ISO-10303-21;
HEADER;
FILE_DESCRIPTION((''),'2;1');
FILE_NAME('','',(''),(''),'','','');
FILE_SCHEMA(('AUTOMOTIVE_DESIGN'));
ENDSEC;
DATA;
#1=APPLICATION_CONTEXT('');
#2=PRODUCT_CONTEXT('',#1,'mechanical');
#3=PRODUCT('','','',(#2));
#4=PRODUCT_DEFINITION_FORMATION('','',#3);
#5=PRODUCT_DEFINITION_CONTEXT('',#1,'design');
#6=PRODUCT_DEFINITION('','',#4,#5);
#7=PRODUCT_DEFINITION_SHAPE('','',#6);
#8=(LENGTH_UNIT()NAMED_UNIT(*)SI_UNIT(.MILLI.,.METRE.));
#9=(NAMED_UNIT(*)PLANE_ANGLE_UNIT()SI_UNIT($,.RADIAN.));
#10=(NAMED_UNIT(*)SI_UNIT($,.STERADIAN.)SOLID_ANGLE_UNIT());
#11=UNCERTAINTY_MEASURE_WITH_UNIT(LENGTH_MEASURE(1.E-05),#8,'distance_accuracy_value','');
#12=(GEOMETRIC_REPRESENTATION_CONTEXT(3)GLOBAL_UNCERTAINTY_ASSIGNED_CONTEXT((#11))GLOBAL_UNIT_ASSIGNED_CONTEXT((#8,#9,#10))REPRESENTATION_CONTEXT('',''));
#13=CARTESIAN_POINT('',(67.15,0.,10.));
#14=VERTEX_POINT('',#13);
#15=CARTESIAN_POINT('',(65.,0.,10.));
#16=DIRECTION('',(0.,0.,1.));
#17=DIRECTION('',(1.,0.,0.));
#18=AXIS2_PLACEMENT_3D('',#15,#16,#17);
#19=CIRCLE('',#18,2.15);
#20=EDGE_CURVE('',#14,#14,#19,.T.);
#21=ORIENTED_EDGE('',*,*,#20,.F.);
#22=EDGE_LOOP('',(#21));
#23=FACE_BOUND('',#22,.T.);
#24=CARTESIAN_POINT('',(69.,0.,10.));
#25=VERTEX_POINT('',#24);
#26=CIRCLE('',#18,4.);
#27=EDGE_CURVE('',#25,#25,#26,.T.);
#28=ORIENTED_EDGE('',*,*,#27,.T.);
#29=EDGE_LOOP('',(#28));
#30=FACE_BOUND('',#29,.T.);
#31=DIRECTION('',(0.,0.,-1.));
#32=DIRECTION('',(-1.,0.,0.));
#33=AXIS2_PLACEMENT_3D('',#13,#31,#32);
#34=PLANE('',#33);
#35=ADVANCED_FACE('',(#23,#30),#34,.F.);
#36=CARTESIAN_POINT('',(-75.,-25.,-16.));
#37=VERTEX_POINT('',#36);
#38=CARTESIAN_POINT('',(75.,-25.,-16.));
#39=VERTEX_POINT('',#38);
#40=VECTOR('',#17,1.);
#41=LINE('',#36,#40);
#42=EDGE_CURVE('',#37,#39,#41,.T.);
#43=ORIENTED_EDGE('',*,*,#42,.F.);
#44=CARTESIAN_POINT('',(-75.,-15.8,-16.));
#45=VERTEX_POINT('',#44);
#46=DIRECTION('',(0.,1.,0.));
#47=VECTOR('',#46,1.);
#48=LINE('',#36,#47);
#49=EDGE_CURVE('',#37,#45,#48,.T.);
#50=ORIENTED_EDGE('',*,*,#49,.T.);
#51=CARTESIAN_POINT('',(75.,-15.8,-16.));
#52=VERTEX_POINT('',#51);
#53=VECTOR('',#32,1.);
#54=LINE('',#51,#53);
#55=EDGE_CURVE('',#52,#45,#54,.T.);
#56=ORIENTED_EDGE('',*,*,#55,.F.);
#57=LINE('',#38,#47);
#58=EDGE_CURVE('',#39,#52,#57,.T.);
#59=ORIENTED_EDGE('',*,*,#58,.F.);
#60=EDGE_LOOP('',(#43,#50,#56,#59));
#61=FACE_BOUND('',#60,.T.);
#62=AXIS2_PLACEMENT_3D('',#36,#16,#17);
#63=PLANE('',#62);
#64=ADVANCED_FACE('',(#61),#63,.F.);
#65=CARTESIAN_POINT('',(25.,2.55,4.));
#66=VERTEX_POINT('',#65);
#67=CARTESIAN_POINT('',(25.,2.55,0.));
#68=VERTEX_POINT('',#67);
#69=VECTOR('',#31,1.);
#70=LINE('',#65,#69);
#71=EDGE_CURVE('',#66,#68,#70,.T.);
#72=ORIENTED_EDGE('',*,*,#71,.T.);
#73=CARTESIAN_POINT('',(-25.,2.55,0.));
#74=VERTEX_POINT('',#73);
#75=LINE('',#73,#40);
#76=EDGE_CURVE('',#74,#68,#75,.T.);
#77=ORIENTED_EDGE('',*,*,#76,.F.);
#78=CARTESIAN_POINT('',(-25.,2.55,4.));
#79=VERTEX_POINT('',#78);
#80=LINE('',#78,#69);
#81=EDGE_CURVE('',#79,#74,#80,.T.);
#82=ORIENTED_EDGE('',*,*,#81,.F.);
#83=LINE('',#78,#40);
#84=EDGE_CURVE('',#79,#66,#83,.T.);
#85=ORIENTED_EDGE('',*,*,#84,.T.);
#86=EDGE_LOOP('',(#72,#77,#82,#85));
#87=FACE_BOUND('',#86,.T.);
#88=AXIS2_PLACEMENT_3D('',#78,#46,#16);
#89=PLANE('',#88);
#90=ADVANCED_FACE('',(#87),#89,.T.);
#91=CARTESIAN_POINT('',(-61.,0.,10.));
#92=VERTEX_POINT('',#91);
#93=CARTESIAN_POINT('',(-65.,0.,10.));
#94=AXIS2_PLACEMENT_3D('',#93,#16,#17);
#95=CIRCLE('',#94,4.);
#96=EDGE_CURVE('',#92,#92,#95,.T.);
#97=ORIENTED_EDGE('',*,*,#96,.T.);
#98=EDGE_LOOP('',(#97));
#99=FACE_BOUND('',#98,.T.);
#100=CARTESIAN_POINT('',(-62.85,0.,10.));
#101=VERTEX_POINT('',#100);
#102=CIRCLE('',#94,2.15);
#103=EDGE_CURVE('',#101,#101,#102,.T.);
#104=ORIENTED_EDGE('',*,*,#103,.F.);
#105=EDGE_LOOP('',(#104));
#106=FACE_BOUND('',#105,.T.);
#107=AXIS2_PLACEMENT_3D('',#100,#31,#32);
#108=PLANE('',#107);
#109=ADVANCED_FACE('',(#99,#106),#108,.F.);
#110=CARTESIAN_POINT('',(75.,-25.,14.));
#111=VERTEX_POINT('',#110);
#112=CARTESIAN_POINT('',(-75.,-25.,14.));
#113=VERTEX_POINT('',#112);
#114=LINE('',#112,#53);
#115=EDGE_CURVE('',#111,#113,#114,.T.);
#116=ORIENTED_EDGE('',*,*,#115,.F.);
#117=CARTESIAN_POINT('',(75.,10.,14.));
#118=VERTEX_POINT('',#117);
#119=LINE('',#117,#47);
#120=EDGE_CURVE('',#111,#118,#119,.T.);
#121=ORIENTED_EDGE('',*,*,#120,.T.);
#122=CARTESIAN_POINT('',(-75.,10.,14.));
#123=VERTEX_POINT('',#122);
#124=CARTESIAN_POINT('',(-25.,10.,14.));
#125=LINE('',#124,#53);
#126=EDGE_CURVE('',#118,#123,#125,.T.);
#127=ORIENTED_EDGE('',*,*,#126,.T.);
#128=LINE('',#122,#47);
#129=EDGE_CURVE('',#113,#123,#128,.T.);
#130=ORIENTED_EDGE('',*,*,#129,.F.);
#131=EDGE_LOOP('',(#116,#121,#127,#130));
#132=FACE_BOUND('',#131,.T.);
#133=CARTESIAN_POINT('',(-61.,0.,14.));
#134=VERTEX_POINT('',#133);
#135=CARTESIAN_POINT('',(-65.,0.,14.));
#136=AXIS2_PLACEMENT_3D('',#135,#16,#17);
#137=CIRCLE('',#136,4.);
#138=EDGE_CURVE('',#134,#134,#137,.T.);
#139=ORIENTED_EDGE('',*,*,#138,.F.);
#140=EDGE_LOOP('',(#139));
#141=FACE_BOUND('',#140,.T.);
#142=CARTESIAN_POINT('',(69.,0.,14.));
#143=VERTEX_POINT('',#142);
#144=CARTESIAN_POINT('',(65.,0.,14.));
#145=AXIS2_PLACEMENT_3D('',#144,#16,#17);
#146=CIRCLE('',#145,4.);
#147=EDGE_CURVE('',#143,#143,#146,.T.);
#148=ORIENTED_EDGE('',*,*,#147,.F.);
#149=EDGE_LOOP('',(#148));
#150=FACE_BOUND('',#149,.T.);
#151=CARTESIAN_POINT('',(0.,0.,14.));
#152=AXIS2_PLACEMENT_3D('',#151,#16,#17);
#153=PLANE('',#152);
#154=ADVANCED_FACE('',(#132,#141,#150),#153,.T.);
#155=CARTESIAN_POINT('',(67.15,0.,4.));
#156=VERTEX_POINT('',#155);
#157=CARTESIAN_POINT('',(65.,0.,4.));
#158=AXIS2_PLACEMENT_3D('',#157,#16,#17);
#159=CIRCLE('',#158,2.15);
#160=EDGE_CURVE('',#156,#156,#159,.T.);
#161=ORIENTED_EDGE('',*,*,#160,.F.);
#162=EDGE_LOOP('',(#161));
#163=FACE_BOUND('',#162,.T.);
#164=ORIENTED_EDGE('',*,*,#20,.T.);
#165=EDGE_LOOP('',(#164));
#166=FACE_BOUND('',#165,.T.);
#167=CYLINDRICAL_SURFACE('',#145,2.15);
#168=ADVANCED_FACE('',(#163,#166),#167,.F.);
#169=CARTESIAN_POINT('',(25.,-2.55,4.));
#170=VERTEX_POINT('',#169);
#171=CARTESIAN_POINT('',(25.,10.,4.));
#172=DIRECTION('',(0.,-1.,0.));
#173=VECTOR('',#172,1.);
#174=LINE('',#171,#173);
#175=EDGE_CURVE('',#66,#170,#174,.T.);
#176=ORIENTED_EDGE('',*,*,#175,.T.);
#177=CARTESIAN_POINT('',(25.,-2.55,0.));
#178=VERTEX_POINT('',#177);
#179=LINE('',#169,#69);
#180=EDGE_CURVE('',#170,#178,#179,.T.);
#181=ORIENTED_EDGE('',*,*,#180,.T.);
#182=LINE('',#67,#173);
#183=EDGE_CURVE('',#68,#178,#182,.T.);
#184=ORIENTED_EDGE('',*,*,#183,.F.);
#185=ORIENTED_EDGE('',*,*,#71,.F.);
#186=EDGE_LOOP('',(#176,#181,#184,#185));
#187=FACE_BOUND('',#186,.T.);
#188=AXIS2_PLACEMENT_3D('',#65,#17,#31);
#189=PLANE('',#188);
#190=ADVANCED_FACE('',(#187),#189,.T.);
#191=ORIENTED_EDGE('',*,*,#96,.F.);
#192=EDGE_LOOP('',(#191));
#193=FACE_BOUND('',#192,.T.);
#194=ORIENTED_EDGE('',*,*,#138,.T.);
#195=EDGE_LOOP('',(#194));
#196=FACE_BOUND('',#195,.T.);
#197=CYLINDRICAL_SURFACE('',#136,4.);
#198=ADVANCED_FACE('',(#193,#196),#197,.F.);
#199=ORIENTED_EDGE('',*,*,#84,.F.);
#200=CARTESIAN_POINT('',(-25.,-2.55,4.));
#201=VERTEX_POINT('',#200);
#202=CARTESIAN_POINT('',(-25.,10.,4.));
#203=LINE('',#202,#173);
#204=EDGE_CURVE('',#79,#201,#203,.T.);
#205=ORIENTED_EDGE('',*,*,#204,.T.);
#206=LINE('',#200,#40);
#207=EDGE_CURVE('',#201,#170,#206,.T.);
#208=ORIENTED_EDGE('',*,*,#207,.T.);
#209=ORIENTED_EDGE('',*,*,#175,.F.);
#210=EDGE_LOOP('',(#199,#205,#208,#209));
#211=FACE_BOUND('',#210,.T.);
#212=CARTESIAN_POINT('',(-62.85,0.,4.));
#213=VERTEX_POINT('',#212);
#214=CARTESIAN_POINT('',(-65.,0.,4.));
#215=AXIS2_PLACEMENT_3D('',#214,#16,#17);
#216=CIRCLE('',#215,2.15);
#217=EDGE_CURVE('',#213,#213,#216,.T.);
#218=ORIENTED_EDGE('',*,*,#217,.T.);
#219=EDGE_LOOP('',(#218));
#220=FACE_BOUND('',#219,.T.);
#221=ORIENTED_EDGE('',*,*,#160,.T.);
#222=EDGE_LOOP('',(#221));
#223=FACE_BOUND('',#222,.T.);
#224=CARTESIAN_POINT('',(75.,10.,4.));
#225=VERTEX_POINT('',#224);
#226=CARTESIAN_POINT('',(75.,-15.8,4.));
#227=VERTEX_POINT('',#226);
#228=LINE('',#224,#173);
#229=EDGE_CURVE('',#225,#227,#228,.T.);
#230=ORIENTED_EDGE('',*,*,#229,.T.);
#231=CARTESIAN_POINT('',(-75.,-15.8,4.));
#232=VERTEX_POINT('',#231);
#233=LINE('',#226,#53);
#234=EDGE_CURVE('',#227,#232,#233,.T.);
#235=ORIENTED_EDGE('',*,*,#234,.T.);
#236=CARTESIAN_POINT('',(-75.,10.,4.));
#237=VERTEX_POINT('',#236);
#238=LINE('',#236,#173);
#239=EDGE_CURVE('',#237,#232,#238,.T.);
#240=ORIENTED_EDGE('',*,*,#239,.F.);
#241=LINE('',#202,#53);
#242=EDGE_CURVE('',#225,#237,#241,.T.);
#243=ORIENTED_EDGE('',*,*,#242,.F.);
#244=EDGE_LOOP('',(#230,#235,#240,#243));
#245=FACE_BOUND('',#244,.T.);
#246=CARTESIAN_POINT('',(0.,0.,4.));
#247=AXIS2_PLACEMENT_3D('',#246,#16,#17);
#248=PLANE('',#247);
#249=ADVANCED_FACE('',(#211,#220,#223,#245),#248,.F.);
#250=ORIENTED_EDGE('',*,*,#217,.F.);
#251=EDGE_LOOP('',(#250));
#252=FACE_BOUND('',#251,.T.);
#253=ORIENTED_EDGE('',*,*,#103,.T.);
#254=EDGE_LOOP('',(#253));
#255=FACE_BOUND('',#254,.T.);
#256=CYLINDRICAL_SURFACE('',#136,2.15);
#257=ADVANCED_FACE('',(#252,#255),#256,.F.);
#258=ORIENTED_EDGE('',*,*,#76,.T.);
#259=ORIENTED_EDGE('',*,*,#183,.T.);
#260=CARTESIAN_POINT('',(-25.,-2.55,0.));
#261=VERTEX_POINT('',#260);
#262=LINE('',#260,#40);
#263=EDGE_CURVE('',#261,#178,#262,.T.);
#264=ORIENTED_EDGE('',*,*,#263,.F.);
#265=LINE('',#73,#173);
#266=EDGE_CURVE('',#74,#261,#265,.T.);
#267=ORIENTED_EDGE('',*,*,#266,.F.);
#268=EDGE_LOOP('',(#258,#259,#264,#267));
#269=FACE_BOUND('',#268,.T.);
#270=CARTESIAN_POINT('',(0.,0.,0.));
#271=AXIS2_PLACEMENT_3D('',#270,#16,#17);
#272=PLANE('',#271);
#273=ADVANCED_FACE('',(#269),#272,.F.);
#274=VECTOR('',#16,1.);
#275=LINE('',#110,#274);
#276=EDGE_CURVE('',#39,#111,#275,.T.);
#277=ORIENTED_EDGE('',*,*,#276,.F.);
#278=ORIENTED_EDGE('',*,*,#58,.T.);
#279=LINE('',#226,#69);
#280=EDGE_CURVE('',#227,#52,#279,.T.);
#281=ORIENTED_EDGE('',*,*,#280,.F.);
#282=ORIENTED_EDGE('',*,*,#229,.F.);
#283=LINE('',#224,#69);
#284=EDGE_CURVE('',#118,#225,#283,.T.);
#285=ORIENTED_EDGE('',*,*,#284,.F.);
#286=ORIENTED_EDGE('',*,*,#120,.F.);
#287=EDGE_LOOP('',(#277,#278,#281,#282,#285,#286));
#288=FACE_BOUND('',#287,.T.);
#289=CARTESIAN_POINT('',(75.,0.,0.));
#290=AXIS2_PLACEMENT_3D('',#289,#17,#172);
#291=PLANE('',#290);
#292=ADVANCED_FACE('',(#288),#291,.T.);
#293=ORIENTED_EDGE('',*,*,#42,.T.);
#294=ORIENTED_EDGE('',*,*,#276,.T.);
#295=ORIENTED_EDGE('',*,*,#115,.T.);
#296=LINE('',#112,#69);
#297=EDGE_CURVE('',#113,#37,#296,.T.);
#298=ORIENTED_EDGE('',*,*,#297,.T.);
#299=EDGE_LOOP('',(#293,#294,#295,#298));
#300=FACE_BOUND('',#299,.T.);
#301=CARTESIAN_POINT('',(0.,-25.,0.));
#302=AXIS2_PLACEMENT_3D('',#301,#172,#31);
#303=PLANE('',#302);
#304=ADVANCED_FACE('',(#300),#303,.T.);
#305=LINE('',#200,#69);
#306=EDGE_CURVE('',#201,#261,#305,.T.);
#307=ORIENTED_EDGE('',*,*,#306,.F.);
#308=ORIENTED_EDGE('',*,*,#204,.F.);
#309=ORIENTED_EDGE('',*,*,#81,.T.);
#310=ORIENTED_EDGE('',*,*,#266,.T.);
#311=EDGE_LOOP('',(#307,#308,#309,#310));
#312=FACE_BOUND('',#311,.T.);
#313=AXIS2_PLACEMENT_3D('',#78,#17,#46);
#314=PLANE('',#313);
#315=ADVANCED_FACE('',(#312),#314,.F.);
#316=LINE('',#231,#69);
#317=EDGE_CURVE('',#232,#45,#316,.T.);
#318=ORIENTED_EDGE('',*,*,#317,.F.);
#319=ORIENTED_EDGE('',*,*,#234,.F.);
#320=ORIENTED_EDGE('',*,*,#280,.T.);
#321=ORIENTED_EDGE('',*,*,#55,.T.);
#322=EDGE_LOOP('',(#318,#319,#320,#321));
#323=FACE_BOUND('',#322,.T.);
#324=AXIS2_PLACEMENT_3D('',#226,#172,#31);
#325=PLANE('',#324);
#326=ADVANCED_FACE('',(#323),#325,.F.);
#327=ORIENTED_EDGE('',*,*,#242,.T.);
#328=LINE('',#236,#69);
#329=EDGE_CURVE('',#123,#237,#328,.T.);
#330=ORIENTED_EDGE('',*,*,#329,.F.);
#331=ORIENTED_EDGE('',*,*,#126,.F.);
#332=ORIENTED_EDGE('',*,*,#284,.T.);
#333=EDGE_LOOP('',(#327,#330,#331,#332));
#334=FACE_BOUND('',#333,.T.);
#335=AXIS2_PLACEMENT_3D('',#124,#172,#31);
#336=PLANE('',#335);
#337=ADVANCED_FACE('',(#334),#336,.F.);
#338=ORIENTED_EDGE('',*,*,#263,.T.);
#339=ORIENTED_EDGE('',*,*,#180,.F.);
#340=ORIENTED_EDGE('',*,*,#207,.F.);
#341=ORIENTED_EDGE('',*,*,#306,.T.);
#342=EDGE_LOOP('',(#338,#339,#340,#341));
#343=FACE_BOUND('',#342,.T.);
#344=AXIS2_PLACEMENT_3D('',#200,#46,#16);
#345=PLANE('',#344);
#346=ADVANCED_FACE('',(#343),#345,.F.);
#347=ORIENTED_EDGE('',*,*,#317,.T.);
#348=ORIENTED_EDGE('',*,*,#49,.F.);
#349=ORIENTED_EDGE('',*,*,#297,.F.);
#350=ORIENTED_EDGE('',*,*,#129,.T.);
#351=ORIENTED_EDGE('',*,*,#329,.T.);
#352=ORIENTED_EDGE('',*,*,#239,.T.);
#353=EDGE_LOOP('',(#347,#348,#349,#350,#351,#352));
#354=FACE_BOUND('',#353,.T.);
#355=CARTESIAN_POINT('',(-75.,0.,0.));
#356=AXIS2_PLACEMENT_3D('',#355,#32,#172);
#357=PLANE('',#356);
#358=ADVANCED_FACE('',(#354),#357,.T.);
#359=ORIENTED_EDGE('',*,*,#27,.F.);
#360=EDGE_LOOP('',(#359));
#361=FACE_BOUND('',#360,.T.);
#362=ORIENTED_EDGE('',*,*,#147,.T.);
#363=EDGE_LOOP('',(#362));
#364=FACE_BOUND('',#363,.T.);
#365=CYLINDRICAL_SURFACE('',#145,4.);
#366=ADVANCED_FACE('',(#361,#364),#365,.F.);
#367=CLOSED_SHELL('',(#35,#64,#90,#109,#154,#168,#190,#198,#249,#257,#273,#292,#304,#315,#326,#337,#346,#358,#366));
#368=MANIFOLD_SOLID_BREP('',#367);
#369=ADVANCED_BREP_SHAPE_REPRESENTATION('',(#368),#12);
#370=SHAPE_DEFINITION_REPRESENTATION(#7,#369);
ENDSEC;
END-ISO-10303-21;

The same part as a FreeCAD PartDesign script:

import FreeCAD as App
import Part
import Sketcher
Q = App.Units.Quantity


def add_polygon(sketch, points):
    """Adds a closed chain of lines whose ends are joined by coincident constraints."""
    first, n = sketch.GeometryCount, len(points)
    for a, b in zip(points, points[1:] + points[:1]):
        sketch.addGeometry(Part.LineSegment(App.Vector(*a, 0), App.Vector(*b, 0)), False)
    for i in range(n):
        sketch.addConstraint(Sketcher.Constraint("Coincident", first + i, 2, first + (i + 1) % n, 1))

doc = App.newDocument("Part")
body = doc.addObject("PartDesign::Body", "Body")

sketch1 = doc.addObject("Sketcher::SketchObject", "Sketch")
body.addObject(sketch1)
sketch1.AttachmentSupport = (doc.XY_Plane, [""])
sketch1.MapMode = "FlatFace"
add_polygon(sketch1, [(-25, 3), (-25, -3), (25, -3), (25, 3)])
sketch1.addConstraint([
    Sketcher.Constraint("Vertical", 0),
    Sketcher.Constraint("Horizontal", 1),
    Sketcher.Constraint("Vertical", 2),
    Sketcher.Constraint("Horizontal", 3),
    Sketcher.Constraint("Symmetric", 0, 2, 2, 2, -1, 1),
    Sketcher.Constraint("DistanceX", 1, 1, 1, 2, Q("50 mm")),
    Sketcher.Constraint("DistanceY", 0, 2, 0, 1, Q("5.1 mm")),
])
pad1 = doc.addObject("PartDesign::Pad", "Pad")
body.addObject(pad1)
pad1.Profile = sketch1
pad1.Length = 4

sketch2 = doc.addObject("Sketcher::SketchObject", "Sketch001")
body.addObject(sketch2)
sketch2.AttachmentSupport = (doc.XY_Plane, [""])
sketch2.MapMode = "FlatFace"
sketch2.AttachmentOffset = App.Placement(App.Vector(0, 0, 4), App.Rotation())
add_polygon(sketch2, [(-25, 10), (-25, -15), (25, -15), (25, 10)])
sketch2.addConstraint([
    Sketcher.Constraint("Vertical", 0),
    Sketcher.Constraint("Horizontal", 1),
    Sketcher.Constraint("Vertical", 2),
    Sketcher.Constraint("Horizontal", 3),
    Sketcher.Constraint("DistanceX", 1, 1, 1, 2, Q("50 mm")),
    Sketcher.Constraint("DistanceY", 0, 2, 0, 1, Q("25 mm")),
    Sketcher.Constraint("DistanceX", 0, 2, -1, 1, Q("25 mm")),
    Sketcher.Constraint("DistanceY", 0, 2, -1, 1, Q("15 mm")),
])
pad2 = doc.addObject("PartDesign::Pad", "Pad001")
body.addObject(pad2)
pad2.Profile = sketch2
pad2.Length = 10

sketch3 = doc.addObject("Sketcher::SketchObject", "Sketch002")
body.addObject(sketch3)
sketch3.AttachmentSupport = (doc.YZ_Plane, [""])
sketch3.MapMode = "FlatFace"
sketch3.AttachmentOffset = App.Placement(App.Vector(0, 0, -25), App.Rotation())
add_polygon(sketch3, [(10, 4), (-15, 4), (-15, 14), (10, 14)])
sketch3.addConstraint([
    Sketcher.Constraint("Horizontal", 0),
    Sketcher.Constraint("Vertical", 1),
    Sketcher.Constraint("Horizontal", 2),
    Sketcher.Constraint("Vertical", 3),
    Sketcher.Constraint("DistanceX", 0, 2, 0, 1, Q("25 mm")),
    Sketcher.Constraint("DistanceY", 1, 1, 1, 2, Q("10 mm")),
    Sketcher.Constraint("DistanceX", 0, 2, -1, 1, Q("15 mm")),
    Sketcher.Constraint("DistanceY", -1, 1, 0, 2, Q("4 mm")),
])
pad3 = doc.addObject("PartDesign::Pad", "Pad002")
body.addObject(pad3)
pad3.Profile = sketch3
pad3.Length = 50
pad3.Reversed = True
doc.recompute()

mirrored = doc.addObject("PartDesign::Mirrored", "Mirrored")
body.addObject(mirrored)
mirrored.Originals = [pad3]
mirrored.MirrorPlane = (doc.YZ_Plane, [""])
body.Tip = mirrored

sketch4 = doc.addObject("Sketcher::SketchObject", "Sketch003")
body.addObject(sketch4)
sketch4.AttachmentSupport = (doc.XZ_Plane, [""])
sketch4.MapMode = "FlatFace"
sketch4.AttachmentOffset = App.Placement(App.Vector(0, 0, 15), App.Rotation())
add_polygon(sketch4, [(-75, 14), (-75, -16), (75, -16), (75, 14)])
sketch4.addConstraint([
    Sketcher.Constraint("Vertical", 0),
    Sketcher.Constraint("Horizontal", 1),
    Sketcher.Constraint("Vertical", 2),
    Sketcher.Constraint("Horizontal", 3),
    Sketcher.Constraint("DistanceX", 1, 1, 1, 2, Q("150 mm")),
    Sketcher.Constraint("DistanceY", 0, 2, 0, 1, Q("30 mm")),
    Sketcher.Constraint("DistanceX", 0, 2, -1, 1, Q("75 mm")),
    Sketcher.Constraint("DistanceY", 0, 2, -1, 1, Q("16 mm")),
])
pad4 = doc.addObject("PartDesign::Pad", "Pad003")
body.addObject(pad4)
pad4.Profile = sketch4
pad4.Length = 10

sketch5 = doc.addObject("Sketcher::SketchObject", "Sketch004")
body.addObject(sketch5)
sketch5.AttachmentSupport = (doc.XY_Plane, [""])
sketch5.MapMode = "FlatFace"
sketch5.AttachmentOffset = App.Placement(App.Vector(0, 0, 4), App.Rotation())
add_polygon(sketch5, [(75, -15), (75, -15.8), (-75, -15.8), (-75, -15)])
sketch5.addConstraint([
    Sketcher.Constraint("Vertical", 0),
    Sketcher.Constraint("Horizontal", 1),
    Sketcher.Constraint("Vertical", 2),
    Sketcher.Constraint("Horizontal", 3),
    Sketcher.Constraint("DistanceX", 1, 2, 1, 1, Q("150 mm")),
    Sketcher.Constraint("DistanceY", 0, 2, 0, 1, Q("0.8 mm")),
    Sketcher.Constraint("DistanceX", -1, 1, 0, 2, Q("75 mm")),
    Sketcher.Constraint("DistanceY", 2, 2, -1, 1, Q("15 mm")),
])
pocket1 = doc.addObject("PartDesign::Pocket", "Pocket")
body.addObject(pocket1)
pocket1.Profile = sketch5
pocket1.Length = 20

sketch6 = doc.addObject("Sketcher::SketchObject", "Sketch005")
body.addObject(sketch6)
sketch6.AttachmentSupport = (doc.XY_Plane, [""])
sketch6.MapMode = "FlatFace"
sketch6.AttachmentOffset = App.Placement(App.Vector(0, 0, 14), App.Rotation())
sketch6.addGeometry([
    Part.Circle(App.Vector(-65, 0, 0), App.Vector(0, 0, 1), 2.1),
    Part.Circle(App.Vector(65, 0, 0), App.Vector(0, 0, 1), 2.1),
], False)
sketch6.addConstraint([
    Sketcher.Constraint("Equal", 0, 1),
    Sketcher.Constraint("Symmetric", 0, 3, 1, 3, -1, 1),
    Sketcher.Constraint("PointOnObject", 0, 3, -1),
    Sketcher.Constraint("Diameter", 0, Q("4.3 mm")),
    Sketcher.Constraint("DistanceX", 0, 3, -1, 1, Q("65 mm")),
])
doc.recompute()
hole = doc.addObject("PartDesign::Hole", "Hole")
body.addObject(hole)
hole.Profile = sketch6
hole.ThreadType = "None"
hole.Diameter = 4.3
hole.DepthType = "ThroughAll"
hole.HoleCutType = "Counterbore"
hole.HoleCutDiameter = 8
hole.HoleCutDepth = 4

doc.recompute()
